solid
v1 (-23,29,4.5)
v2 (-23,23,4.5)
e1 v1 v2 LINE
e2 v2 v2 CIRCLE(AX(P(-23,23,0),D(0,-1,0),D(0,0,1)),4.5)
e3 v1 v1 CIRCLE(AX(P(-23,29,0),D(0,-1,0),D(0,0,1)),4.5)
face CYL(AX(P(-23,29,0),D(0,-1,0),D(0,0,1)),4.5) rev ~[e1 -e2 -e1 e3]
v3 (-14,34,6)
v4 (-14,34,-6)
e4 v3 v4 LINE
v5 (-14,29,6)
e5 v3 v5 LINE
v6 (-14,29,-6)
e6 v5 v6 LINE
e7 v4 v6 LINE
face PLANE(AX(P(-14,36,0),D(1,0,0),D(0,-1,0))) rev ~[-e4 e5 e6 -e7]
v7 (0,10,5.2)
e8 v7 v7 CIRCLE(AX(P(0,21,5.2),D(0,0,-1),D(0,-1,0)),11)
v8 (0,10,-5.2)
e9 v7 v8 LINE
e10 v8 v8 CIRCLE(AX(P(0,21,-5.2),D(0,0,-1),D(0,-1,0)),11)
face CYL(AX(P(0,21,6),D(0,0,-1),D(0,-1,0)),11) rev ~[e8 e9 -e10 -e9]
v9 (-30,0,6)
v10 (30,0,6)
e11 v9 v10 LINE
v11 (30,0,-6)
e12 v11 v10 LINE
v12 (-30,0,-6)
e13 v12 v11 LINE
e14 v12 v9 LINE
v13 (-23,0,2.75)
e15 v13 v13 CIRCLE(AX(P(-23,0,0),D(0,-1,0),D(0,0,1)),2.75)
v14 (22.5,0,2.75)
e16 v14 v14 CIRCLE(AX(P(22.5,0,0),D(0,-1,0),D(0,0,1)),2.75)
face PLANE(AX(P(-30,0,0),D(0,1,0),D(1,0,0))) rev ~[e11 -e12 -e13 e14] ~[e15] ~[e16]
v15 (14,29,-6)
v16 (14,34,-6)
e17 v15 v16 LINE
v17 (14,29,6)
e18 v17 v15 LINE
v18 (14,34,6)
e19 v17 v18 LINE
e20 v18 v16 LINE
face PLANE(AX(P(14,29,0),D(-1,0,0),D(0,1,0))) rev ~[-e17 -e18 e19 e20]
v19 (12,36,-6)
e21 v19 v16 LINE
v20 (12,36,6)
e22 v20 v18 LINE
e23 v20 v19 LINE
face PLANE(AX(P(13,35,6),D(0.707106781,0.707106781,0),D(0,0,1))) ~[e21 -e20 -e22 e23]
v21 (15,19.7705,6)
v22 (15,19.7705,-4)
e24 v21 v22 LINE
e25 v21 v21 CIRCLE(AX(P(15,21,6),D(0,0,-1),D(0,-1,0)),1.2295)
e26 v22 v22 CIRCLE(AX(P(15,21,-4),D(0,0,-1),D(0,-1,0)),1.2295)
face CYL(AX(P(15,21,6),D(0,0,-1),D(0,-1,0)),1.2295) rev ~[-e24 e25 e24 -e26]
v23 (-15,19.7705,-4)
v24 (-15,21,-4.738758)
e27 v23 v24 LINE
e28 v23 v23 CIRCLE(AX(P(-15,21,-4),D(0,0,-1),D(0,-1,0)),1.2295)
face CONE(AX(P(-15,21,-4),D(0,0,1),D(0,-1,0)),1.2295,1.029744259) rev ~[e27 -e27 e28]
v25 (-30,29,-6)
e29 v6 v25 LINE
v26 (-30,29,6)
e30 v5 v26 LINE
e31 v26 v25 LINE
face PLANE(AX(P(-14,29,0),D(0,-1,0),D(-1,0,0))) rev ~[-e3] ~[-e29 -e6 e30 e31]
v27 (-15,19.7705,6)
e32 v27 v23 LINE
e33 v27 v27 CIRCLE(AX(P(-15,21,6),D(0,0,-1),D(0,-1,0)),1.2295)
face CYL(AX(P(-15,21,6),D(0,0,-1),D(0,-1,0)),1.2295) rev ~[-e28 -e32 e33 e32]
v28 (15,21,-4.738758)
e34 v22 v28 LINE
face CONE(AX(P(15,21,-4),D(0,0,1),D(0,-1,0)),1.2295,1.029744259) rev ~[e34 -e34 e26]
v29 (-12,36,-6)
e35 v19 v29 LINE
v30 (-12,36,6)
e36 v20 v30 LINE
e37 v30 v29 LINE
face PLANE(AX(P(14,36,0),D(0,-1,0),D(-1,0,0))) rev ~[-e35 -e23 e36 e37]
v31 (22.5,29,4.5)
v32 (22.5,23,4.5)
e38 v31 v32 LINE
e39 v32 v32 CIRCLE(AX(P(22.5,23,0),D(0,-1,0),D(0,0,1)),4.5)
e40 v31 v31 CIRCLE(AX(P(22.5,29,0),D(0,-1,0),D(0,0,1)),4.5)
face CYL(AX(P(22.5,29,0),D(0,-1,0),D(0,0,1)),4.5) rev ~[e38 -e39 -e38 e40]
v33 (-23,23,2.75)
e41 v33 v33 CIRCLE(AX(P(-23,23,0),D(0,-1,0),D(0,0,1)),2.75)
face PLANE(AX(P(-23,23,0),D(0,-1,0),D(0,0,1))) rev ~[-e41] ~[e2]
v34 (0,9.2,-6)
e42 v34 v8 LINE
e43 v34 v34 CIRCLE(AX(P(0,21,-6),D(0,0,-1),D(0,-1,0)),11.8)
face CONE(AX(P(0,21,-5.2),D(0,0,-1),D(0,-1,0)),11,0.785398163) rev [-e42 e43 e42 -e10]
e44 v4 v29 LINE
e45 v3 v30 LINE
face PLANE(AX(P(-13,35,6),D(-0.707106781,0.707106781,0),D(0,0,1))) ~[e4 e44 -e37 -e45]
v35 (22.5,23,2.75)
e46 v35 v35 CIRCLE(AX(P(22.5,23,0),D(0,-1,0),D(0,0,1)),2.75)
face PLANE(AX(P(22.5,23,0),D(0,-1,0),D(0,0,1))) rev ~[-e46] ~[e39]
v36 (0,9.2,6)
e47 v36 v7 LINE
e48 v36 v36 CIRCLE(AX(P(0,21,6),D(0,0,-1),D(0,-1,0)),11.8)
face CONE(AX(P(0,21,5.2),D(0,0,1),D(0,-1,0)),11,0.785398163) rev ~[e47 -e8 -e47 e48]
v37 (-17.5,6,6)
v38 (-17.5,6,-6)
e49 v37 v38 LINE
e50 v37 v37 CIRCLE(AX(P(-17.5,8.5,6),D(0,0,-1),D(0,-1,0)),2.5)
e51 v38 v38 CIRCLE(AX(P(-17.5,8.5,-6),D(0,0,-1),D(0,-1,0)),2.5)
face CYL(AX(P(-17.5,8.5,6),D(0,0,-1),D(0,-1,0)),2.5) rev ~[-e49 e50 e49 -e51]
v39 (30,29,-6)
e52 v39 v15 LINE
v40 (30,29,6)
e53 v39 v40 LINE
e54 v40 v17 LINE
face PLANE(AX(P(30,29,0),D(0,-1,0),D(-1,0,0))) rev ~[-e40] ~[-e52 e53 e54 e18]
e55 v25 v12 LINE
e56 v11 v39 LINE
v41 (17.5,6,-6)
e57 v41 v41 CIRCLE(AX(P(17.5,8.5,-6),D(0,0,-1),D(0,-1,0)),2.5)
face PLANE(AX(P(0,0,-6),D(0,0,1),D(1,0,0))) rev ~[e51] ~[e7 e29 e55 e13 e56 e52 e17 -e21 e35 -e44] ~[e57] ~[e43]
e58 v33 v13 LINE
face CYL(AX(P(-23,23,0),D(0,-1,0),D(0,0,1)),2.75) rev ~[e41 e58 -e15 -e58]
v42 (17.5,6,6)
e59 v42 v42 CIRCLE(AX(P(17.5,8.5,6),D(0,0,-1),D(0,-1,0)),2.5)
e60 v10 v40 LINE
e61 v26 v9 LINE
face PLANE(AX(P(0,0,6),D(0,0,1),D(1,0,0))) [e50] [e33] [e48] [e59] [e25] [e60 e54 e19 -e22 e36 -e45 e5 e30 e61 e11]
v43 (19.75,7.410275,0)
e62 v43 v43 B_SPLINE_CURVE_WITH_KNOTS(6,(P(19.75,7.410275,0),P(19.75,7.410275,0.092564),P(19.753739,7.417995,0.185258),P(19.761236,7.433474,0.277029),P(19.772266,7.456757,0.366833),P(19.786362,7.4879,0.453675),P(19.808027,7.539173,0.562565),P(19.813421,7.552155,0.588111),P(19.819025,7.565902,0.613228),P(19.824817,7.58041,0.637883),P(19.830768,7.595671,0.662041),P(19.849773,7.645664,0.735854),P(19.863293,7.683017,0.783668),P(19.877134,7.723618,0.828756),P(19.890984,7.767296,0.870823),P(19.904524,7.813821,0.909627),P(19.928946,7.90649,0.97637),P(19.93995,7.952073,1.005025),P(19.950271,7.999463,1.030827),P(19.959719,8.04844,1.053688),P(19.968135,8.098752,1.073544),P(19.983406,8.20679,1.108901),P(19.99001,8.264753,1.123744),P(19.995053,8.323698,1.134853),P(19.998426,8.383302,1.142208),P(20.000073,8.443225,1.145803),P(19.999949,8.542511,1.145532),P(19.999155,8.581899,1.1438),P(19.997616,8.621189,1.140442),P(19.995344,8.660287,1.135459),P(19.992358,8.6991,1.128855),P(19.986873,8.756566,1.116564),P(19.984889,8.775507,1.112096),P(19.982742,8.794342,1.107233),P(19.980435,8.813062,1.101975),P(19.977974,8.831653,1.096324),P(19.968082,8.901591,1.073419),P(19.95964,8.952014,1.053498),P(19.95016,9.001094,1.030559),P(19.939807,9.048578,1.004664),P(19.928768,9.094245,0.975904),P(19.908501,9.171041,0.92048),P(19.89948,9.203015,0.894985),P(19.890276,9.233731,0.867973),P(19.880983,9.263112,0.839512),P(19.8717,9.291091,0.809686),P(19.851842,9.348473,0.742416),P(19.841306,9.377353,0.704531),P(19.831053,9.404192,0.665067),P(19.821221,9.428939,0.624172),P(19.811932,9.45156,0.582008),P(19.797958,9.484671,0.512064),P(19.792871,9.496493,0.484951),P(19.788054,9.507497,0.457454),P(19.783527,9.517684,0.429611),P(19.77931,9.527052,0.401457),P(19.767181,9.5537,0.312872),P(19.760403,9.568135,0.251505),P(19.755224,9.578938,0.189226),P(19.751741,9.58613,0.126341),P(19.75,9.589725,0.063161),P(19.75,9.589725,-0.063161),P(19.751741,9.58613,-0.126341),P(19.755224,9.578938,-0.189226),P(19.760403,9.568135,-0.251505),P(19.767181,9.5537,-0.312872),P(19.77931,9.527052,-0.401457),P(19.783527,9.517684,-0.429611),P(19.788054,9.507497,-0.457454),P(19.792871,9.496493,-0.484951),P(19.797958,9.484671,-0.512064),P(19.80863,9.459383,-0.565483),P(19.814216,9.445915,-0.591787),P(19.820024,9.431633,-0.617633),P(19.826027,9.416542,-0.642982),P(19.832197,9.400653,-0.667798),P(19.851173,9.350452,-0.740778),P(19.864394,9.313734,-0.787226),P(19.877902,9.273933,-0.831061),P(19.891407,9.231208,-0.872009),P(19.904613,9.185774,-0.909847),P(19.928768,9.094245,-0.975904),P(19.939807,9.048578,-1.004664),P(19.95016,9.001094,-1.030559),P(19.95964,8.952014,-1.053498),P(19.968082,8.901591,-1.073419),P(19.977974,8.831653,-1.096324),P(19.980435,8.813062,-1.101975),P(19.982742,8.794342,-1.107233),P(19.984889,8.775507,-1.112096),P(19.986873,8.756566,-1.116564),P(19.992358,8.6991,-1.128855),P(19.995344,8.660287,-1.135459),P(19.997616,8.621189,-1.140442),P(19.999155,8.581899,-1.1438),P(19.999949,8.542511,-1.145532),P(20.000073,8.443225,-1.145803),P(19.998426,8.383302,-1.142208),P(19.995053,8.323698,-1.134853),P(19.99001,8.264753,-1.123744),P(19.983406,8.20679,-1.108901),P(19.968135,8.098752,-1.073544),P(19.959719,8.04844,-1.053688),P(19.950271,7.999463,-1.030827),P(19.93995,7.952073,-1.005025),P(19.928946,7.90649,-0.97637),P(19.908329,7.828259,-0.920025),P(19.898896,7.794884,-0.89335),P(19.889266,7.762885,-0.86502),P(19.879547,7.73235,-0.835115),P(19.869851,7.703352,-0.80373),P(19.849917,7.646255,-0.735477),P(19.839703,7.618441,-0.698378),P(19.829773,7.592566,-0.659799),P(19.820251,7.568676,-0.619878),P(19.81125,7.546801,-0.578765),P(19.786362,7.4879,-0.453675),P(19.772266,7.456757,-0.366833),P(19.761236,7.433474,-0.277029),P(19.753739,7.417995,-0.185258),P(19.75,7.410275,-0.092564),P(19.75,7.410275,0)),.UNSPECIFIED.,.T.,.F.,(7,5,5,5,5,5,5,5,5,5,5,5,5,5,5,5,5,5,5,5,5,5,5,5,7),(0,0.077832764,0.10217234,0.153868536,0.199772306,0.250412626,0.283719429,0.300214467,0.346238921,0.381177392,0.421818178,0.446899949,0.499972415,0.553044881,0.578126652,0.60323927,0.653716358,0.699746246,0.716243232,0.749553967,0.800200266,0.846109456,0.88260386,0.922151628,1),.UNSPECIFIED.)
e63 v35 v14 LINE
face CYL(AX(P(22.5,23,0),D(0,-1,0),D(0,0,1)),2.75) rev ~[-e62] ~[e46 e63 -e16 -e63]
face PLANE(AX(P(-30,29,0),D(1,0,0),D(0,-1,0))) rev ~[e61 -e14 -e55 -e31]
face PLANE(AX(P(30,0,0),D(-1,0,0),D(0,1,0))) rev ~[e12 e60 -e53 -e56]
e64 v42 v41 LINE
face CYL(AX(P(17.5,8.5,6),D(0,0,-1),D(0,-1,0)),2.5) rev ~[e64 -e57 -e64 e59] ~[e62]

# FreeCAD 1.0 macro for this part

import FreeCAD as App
import Part
import Sketcher
from FreeCAD import Vector
Q = App.Units.Quantity


def edges_at(feature, points):
    """Names of the edges that pass closest to the given points."""
    edges = feature.Shape.Edges
    near = lambda p: min(range(len(edges)), key=lambda i: edges[i].distToShape(Part.Vertex(*p))[0])
    return sorted({f"Edge{near(p) + 1}" for p in points})


def add_polygon(sketch, points):
    """Adds a closed chain of lines whose ends are joined by coincident constraints."""
    first, n = sketch.GeometryCount, len(points)
    for a, b in zip(points, points[1:] + points[:1]):
        sketch.addGeometry(Part.LineSegment(App.Vector(*a, 0), App.Vector(*b, 0)), False)
    for i in range(n):
        sketch.addConstraint(Sketcher.Constraint("Coincident", first + i, 2, first + (i + 1) % n, 1))

doc = App.newDocument("Part")
body = doc.addObject("PartDesign::Body", "Body")

# Sketch on XY plane
sketch1 = body.newObject("Sketcher::SketchObject", "Sketch")
sketch1.AttachmentSupport = (doc.getObject("XY_Plane"), [""])
sketch1.MapMode = "FlatFace"
add_polygon(sketch1, [(-30, 29), (-30, 0), (30, 0), (30, 29), (14, 29), (14, 36), (-14, 36), (-14, 29)])  # lines 0-7
sketch1.addConstraint(Sketcher.Constraint("Vertical", 0))
sketch1.addConstraint(Sketcher.Constraint("Horizontal", 1))
sketch1.addConstraint(Sketcher.Constraint("Vertical", 2))
sketch1.addConstraint(Sketcher.Constraint("Horizontal", 3))
sketch1.addConstraint(Sketcher.Constraint("Vertical", 4))
sketch1.addConstraint(Sketcher.Constraint("Horizontal", 5))
sketch1.addConstraint(Sketcher.Constraint("Vertical", 6))
sketch1.addConstraint(Sketcher.Constraint("Horizontal", 7))
sketch1.addConstraint(Sketcher.Constraint("Symmetric", 0, 2, 1, 2, -1, 1))
sketch1.addConstraint(Sketcher.Constraint("Symmetric", 3, 2, 6, 2, -2))
sketch1.addConstraint(Sketcher.Constraint("DistanceX", 1, 1, 1, 2, Q("60 mm")))
sketch1.addConstraint(Sketcher.Constraint("DistanceX", 5, 2, 5, 1, Q("28 mm")))
sketch1.addConstraint(Sketcher.Constraint("DistanceY", 4, 1, 4, 2, Q("7 mm")))
sketch1.addConstraint(Sketcher.Constraint("DistanceY", -1, 1, 4, 2, Q("36 mm")))
pad1 = body.newObject("PartDesign::Pad", "Pad")
pad1.Profile = sketch1
pad1.Length = 12
pad1.Midplane = True

# Sketch on XY plane
sketch2 = body.newObject("Sketcher::SketchObject", "Sketch001")
sketch2.AttachmentSupport = (doc.getObject("XY_Plane"), [""])
sketch2.MapMode = "FlatFace"
sketch2.AttachmentOffset = App.Placement(Vector(0, 0, 6), App.Rotation())
sketch2.addGeometry(Part.Circle(Vector(0, 21, 0), Vector(0, 0, 1), 11), False)
sketch2.addConstraint(Sketcher.Constraint("PointOnObject", 0, 3, -2))
sketch2.addConstraint(Sketcher.Constraint("Diameter", 0, Q("22 mm")))
sketch2.addConstraint(Sketcher.Constraint("DistanceY", -1, 1, 0, 3, Q("21 mm")))
doc.recompute()
hole = body.newObject("PartDesign::Hole", "Hole")
hole.Profile = sketch2
hole.ThreadType = "None"
hole.Diameter = 22
hole.DepthType = "ThroughAll"
doc.recompute()

chamfer = body.newObject("PartDesign::Chamfer", "Chamfer")
chamfer.Base = (hole, edges_at(hole, [(0, 32, 6), (0, 32, -6)]))
chamfer.Size = 0.8
doc.recompute()

chamfer2 = body.newObject("PartDesign::Chamfer", "Chamfer001")
chamfer2.Base = (chamfer, edges_at(chamfer, [(-14, 36, 0), (14, 36, 0)]))
chamfer2.Size = 2

# Sketch on XZ plane
sketch3 = body.newObject("Sketcher::SketchObject", "Sketch002")
sketch3.AttachmentSupport = (doc.getObject("XZ_Plane"), [""])
sketch3.MapMode = "FlatFace"
sketch3.AttachmentOffset = App.Placement(Vector(0, 0, -29), App.Rotation())
sketch3.addGeometry(Part.Circle(Vector(-23, 0, 0), Vector(0, 0, 1), 2.8), False)
sketch3.addGeometry(Part.Circle(Vector(22.5, 0, 0), Vector(0, 0, 1), 2.8), False)
sketch3.addConstraint(Sketcher.Constraint("Equal", 0, 1))
sketch3.addConstraint(Sketcher.Constraint("PointOnObject", 0, 3, -1))
sketch3.addConstraint(Sketcher.Constraint("PointOnObject", 1, 3, -1))
sketch3.addConstraint(Sketcher.Constraint("Diameter", 0, Q("5.5 mm")))
sketch3.addConstraint(Sketcher.Constraint("DistanceX", 0, 3, -1, 1, Q("23 mm")))
sketch3.addConstraint(Sketcher.Constraint("DistanceX", -1, 1, 1, 3, Q("22.5 mm")))
doc.recompute()
hole2 = body.newObject("PartDesign::Hole", "Hole001")
hole2.Profile = sketch3
hole2.ThreadType = "None"
hole2.Diameter = 5.5
hole2.DepthType = "ThroughAll"
hole2.HoleCutType = "Counterbore"
hole2.HoleCutDiameter = 9
hole2.HoleCutDepth = 6
hole2.Reversed = True

# Sketch on XY plane
sketch4 = body.newObject("Sketcher::SketchObject", "Sketch003")
sketch4.AttachmentSupport = (doc.getObject("XY_Plane"), [""])
sketch4.MapMode = "FlatFace"
sketch4.AttachmentOffset = App.Placement(Vector(0, 0, 6), App.Rotation())
sketch4.addGeometry(Part.Circle(Vector(-17.5, 8.5, 0), Vector(0, 0, 1), 2.5), False)
sketch4.addGeometry(Part.Circle(Vector(17.5, 8.5, 0), Vector(0, 0, 1), 2.5), False)
sketch4.addConstraint(Sketcher.Constraint("Equal", 0, 1))
sketch4.addConstraint(Sketcher.Constraint("Symmetric", 0, 3, 1, 3, -2))
sketch4.addConstraint(Sketcher.Constraint("Diameter", 0, Q("5 mm")))
sketch4.addConstraint(Sketcher.Constraint("DistanceX", 0, 3, 1, 3, Q("35 mm")))
sketch4.addConstraint(Sketcher.Constraint("DistanceY", -1, 1, 0, 3, Q("8.5 mm")))
doc.recompute()
hole3 = body.newObject("PartDesign::Hole", "Hole002")
hole3.Profile = sketch4
hole3.ThreadType = "None"
hole3.Diameter = 5
hole3.DepthType = "ThroughAll"

# Sketch on XY plane
sketch5 = body.newObject("Sketcher::SketchObject", "Sketch004")
sketch5.AttachmentSupport = (doc.getObject("XY_Plane"), [""])
sketch5.MapMode = "FlatFace"
sketch5.AttachmentOffset = App.Placement(Vector(0, 0, 6), App.Rotation())
sketch5.addGeometry(Part.Circle(Vector(-15, 21, 0), Vector(0, 0, 1), 1.2), False)
sketch5.addGeometry(Part.Circle(Vector(15, 21, 0), Vector(0, 0, 1), 1.2), False)
sketch5.addConstraint(Sketcher.Constraint("Equal", 0, 1))
sketch5.addConstraint(Sketcher.Constraint("Symmetric", 0, 3, 1, 3, -2))
sketch5.addConstraint(Sketcher.Constraint("Diameter", 0, Q("2.459 mm")))
sketch5.addConstraint(Sketcher.Constraint("DistanceX", 0, 3, -1, 1, Q("15 mm")))
sketch5.addConstraint(Sketcher.Constraint("DistanceY", -1, 1, 0, 3, Q("21 mm")))
doc.recompute()
hole4 = body.newObject("PartDesign::Hole", "Hole003")
hole4.Profile = sketch5
hole4.ThreadType = "None"
hole4.Diameter = 2.459
hole4.DepthType = "Dimension"
hole4.Depth = 10
hole4.DrillPoint = "Angled"
hole4.DrillPointAngle = 118

doc.recompute()
